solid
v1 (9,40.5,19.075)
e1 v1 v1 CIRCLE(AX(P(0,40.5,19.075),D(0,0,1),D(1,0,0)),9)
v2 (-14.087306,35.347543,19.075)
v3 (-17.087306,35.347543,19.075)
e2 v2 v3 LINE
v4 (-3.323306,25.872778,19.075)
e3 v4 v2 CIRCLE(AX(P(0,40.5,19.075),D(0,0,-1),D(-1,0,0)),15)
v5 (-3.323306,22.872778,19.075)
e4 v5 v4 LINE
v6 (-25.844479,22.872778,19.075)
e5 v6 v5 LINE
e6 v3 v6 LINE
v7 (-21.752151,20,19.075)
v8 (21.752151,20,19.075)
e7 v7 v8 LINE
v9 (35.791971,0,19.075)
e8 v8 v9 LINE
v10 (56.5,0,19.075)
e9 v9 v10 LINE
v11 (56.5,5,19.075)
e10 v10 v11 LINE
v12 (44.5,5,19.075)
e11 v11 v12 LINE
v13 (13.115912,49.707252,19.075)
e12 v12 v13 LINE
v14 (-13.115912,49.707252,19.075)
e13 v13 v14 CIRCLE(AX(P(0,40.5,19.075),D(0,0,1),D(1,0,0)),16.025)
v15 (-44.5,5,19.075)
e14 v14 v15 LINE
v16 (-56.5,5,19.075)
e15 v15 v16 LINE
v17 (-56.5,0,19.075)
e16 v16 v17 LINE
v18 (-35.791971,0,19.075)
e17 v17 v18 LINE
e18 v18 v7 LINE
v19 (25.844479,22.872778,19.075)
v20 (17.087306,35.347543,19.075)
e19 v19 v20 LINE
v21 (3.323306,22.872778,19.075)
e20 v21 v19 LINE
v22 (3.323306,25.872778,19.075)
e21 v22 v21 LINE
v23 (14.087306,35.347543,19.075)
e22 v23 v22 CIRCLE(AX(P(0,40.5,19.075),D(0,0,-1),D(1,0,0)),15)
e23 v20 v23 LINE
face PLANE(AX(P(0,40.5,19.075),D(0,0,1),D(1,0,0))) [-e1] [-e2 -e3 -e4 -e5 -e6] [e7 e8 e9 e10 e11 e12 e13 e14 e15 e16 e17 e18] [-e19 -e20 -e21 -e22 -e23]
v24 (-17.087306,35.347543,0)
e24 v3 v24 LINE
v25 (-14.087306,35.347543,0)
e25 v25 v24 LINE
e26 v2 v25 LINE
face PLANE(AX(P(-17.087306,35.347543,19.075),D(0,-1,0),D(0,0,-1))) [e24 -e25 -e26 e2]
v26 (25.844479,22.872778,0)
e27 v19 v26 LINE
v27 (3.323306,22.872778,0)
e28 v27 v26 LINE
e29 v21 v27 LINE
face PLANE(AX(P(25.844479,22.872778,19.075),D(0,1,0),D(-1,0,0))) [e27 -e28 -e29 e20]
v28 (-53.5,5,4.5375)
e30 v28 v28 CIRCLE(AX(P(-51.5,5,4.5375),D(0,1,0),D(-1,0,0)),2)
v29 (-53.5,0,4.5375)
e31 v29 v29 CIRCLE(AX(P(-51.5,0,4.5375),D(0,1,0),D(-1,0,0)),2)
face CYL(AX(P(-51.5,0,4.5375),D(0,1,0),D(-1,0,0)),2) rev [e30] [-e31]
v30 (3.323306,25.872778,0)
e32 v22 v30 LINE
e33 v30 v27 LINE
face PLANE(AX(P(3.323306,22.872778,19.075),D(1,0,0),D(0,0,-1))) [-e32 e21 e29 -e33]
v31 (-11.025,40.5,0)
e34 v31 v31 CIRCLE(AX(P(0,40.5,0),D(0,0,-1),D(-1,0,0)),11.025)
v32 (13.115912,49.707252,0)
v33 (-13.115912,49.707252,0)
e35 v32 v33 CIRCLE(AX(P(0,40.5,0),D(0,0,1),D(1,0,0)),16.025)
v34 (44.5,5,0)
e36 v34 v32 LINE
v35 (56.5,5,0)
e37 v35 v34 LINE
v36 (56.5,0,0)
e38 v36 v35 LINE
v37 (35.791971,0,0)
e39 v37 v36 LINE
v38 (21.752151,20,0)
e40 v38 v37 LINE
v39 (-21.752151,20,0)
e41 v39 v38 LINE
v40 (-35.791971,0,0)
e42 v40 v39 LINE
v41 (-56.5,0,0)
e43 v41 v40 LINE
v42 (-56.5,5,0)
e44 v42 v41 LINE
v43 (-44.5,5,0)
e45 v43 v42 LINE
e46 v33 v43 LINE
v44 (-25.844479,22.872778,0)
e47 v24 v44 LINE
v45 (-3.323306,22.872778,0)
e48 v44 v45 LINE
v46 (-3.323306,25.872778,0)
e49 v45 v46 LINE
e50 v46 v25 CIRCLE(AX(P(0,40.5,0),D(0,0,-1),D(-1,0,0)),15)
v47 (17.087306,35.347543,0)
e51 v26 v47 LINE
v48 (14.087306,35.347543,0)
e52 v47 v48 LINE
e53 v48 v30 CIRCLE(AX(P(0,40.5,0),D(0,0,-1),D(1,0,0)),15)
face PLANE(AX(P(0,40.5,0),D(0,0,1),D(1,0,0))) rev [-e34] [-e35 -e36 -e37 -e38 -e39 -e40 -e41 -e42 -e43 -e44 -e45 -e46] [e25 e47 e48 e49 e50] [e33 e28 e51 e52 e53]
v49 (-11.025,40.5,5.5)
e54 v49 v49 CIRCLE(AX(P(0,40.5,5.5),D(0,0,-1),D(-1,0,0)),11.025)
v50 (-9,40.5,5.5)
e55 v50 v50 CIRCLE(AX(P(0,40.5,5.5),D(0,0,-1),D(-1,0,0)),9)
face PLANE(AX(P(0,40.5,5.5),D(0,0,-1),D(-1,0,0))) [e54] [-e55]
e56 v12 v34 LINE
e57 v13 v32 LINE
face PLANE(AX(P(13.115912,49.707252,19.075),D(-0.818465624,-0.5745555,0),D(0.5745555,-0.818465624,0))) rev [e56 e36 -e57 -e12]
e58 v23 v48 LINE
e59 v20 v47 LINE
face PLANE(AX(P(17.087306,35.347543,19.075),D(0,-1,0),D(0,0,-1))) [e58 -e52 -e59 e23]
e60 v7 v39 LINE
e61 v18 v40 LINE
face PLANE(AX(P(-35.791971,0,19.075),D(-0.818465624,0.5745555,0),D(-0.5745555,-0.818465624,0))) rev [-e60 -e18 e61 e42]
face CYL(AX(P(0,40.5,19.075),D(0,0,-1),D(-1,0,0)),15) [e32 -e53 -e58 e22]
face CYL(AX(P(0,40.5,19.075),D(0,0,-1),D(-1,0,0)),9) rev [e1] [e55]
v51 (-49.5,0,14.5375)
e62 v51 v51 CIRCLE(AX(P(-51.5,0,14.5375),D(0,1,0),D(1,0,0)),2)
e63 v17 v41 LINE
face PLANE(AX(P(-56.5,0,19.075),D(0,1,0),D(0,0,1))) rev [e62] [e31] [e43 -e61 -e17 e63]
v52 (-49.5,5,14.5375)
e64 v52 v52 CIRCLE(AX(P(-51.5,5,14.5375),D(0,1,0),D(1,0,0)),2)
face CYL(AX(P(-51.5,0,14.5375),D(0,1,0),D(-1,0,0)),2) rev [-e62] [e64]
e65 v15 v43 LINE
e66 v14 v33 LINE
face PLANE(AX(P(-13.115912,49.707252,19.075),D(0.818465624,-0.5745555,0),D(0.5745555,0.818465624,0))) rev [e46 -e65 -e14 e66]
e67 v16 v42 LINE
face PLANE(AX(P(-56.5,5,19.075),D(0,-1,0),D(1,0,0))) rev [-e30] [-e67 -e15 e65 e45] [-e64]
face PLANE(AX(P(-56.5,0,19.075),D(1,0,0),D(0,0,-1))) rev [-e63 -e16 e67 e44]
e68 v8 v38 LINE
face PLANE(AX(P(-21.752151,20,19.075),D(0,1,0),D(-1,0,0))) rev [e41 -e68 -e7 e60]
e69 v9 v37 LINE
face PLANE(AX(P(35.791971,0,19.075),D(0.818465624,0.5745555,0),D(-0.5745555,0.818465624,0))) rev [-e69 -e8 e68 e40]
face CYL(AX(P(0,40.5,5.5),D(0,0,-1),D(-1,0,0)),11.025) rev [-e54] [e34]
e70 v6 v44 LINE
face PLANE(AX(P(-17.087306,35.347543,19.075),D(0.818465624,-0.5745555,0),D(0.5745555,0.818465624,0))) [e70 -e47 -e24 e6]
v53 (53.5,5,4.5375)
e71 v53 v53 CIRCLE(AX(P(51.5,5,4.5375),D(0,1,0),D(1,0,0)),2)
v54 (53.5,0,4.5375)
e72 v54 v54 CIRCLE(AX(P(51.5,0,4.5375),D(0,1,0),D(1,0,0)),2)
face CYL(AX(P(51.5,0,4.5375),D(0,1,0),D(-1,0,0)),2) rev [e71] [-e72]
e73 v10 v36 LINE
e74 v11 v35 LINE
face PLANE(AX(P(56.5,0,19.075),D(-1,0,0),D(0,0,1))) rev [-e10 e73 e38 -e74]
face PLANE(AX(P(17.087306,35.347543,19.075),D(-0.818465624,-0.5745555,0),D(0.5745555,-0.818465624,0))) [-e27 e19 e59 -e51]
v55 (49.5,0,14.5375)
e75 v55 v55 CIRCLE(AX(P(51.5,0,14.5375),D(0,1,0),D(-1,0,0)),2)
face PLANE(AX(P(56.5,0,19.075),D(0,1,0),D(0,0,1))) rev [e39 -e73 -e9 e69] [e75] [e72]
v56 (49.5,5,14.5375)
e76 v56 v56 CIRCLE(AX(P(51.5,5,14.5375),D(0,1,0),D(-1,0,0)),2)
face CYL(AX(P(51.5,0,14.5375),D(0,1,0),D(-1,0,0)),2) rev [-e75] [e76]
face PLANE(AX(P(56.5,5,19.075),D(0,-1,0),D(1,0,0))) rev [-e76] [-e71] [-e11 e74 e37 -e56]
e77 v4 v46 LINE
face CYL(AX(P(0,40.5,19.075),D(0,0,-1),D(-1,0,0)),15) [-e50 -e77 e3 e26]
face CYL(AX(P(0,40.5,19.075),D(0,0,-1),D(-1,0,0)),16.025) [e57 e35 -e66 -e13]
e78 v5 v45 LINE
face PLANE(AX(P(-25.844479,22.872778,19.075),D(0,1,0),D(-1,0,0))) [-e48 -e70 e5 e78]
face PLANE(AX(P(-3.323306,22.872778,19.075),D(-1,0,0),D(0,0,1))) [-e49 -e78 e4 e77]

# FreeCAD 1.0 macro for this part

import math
import FreeCAD as App
import Part
import Sketcher
from FreeCAD import Vector

doc = App.newDocument("Part")
params = doc.addObject("Spreadsheet::Sheet", "Params")
for row, (alias, value) in enumerate([
    ("sketch1_diameter", "18 mm"),
    ("sketch1_radius", "15 mm"),
    ("sketch1_width", "12 mm"),
    ("sketch1_width2", "3 mm"),
    ("sketch1_height", "5 mm"),
    ("pad1_length", "19.075 mm"),
    ("sketch2_diameter", "22.05 mm"),
    ("pocket1_length", "5.5 mm"),
    ("sketch3_diameter", "4 mm"),
], start=1):
    params.set(f"A{row}", alias)
    params.set(f"B{row}", "=" + value)
    params.setAlias(f"B{row}", alias)

body = doc.addObject("PartDesign::Body", "Body")

sketch1 = body.newObject("Sketcher::SketchObject", "Sketch")
sketch1.AttachmentSupport = (doc.getObject("XY_Plane"), [""])
sketch1.MapMode = "FlatFace"
sketch1.addGeometry([
    Part.LineSegment(Vector(-56.5, 5, 0), Vector(-56.5, 0, 0)),
    Part.LineSegment(Vector(-56.5, 0, 0), Vector(-35.8, 0, 0)),
    Part.LineSegment(Vector(-35.8, 0, 0), Vector(-21.8, 20, 0)),
    Part.LineSegment(Vector(-21.8, 20, 0), Vector(21.8, 20, 0)),
    Part.LineSegment(Vector(21.8, 20, 0), Vector(35.8, 0, 0)),
    Part.LineSegment(Vector(35.8, 0, 0), Vector(56.5, 0, 0)),
    Part.LineSegment(Vector(56.5, 0, 0), Vector(56.5, 5, 0)),
    Part.LineSegment(Vector(56.5, 5, 0), Vector(44.5, 5, 0)),
    Part.LineSegment(Vector(44.5, 5, 0), Vector(13.1, 49.7, 0)),
    Part.ArcOfCircle(Part.Circle(Vector(0, 40.5, 0), Vector(0, 0, 1), 16), math.radians(35), math.radians(145)),
    Part.LineSegment(Vector(-13.1, 49.7, 0), Vector(-44.5, 5, 0)),
    Part.LineSegment(Vector(-44.5, 5, 0), Vector(-56.5, 5, 0)),
    Part.LineSegment(Vector(17.1, 35.3, 0), Vector(25.8, 22.9, 0)),
    Part.LineSegment(Vector(25.8, 22.9, 0), Vector(3.3, 22.9, 0)),
    Part.LineSegment(Vector(3.3, 22.9, 0), Vector(3.3, 25.9, 0)),
    Part.ArcOfCircle(Part.Circle(Vector(0, 40.5, 0), Vector(0, 0, 1), 15), math.radians(-77), math.radians(-20)),
    Part.LineSegment(Vector(14.1, 35.3, 0), Vector(17.1, 35.3, 0)),
    Part.LineSegment(Vector(-17.1, 35.3, 0), Vector(-14.1, 35.3, 0)),
    Part.ArcOfCircle(Part.Circle(Vector(0, 40.5, 0), Vector(0, 0, 1), 15), math.radians(-160), math.radians(-103)),
    Part.LineSegment(Vector(-3.3, 25.9, 0), Vector(-3.3, 22.9, 0)),
    Part.LineSegment(Vector(-3.3, 22.9, 0), Vector(-25.8, 22.9, 0)),
    Part.LineSegment(Vector(-25.8, 22.9, 0), Vector(-17.1, 35.3, 0)),
    Part.Circle(Vector(0, 40.5, 0), Vector(0, 0, 1), 9),
], False)
sketch1.addConstraint([
    Sketcher.Constraint("Coincident", 0, 2, 1, 1),
    Sketcher.Constraint("Coincident", 1, 2, 2, 1),
    Sketcher.Constraint("Coincident", 2, 2, 3, 1),
    Sketcher.Constraint("Coincident", 3, 2, 4, 1),
    Sketcher.Constraint("Coincident", 4, 2, 5, 1),
    Sketcher.Constraint("Coincident", 5, 2, 6, 1),
    Sketcher.Constraint("Coincident", 6, 2, 7, 1),
    Sketcher.Constraint("Coincident", 7, 2, 8, 1),
    Sketcher.Constraint("Tangent", 8, 2, 9, 1),
    Sketcher.Constraint("Tangent", 9, 2, 10, 1),
    Sketcher.Constraint("Coincident", 10, 2, 11, 1),
    Sketcher.Constraint("Coincident", 11, 2, 0, 1),
    Sketcher.Constraint("Coincident", 12, 2, 13, 1),
    Sketcher.Constraint("Coincident", 13, 2, 14, 1),
    Sketcher.Constraint("Coincident", 14, 2, 15, 1),
    Sketcher.Constraint("Coincident", 15, 2, 16, 1),
    Sketcher.Constraint("Coincident", 16, 2, 12, 1),
    Sketcher.Constraint("Coincident", 17, 2, 18, 1),
    Sketcher.Constraint("Coincident", 18, 2, 19, 1),
    Sketcher.Constraint("Coincident", 19, 2, 20, 1),
    Sketcher.Constraint("Coincident", 20, 2, 21, 1),
    Sketcher.Constraint("Coincident", 21, 2, 17, 1),
    Sketcher.Constraint("Vertical", 0),
    Sketcher.Constraint("Horizontal", 1),
    Sketcher.Constraint("Horizontal", 3),
    Sketcher.Constraint("Horizontal", 5),
    Sketcher.Constraint("Vertical", 6),
    Sketcher.Constraint("Horizontal", 7),
    Sketcher.Constraint("Horizontal", 11),
    Sketcher.Constraint("Horizontal", 13),
    Sketcher.Constraint("Vertical", 14),
    Sketcher.Constraint("Horizontal", 16),
    Sketcher.Constraint("Horizontal", 17),
    Sketcher.Constraint("Vertical", 19),
    Sketcher.Constraint("Horizontal", 20),
    Sketcher.Constraint("Coincident", 15, 3, 9, 3),
    Sketcher.Constraint("Coincident", 18, 3, 9, 3),
    Sketcher.Constraint("Coincident", 22, 3, 9, 3),
    Sketcher.Constraint("Equal", 15, 18),
    Sketcher.Constraint("Symmetric", 1, 2, 4, 2, -1, 1),
    Sketcher.Constraint("Symmetric", 0, 2, 5, 2, -2),
    Sketcher.Constraint("Symmetric", 8, 2, 9, 2, -2),
    Sketcher.Constraint("Symmetric", 13, 2, 19, 2, -2),
    Sketcher.Constraint("Symmetric", 16, 2, 21, 2, -2),
    Sketcher.Constraint("Parallel", 4, 8),
    Sketcher.Constraint("Parallel", 2, 10),
    Sketcher.Constraint("Parallel", 8, 12),
    Sketcher.Constraint("Parallel", 10, 21),
    Sketcher.Constraint("Horizontal", 7, 2, 10, 2),
    Sketcher.Constraint("Equal", 17, 14),
    Sketcher.Constraint("Diameter", 22, 18.0),
    Sketcher.Constraint("Radius", 15, 15.0),
    Sketcher.Constraint("DistanceX", 7, 2, 7, 1, 12.0),
    Sketcher.Constraint("DistanceX", 16, 1, 16, 2, 3.0),
    Sketcher.Constraint("DistanceY", 0, 2, 0, 1, 5.0),
    Sketcher.Constraint("DistanceY", -1, 1, 2, 2, 20.0),
    Sketcher.Constraint("Radius", 9, 16.025),
    Sketcher.Constraint("DistanceY", -1, 1, 9, 3, 40.5),
    Sketcher.Constraint("DistanceX", 0, 2, -1, 1, 56.5),
    Sketcher.Constraint("DistanceX", 3, 1, 3, 2, 43.504302),
    Sketcher.Constraint("DistanceX", 14, 2, 15, 2, 10.764),
    Sketcher.Constraint("Distance", 12, 15.241649),
])
sketch1.setExpression("Constraints[50]", "Params.sketch1_diameter")
sketch1.setExpression("Constraints[51]", "Params.sketch1_radius")
sketch1.setExpression("Constraints[52]", "Params.sketch1_width")
sketch1.setExpression("Constraints[53]", "Params.sketch1_width2")
sketch1.setExpression("Constraints[54]", "Params.sketch1_height")
pad1 = body.newObject("PartDesign::Pad", "Pad")
pad1.Profile = sketch1
pad1.setExpression("Length", "Params.pad1_length")

sketch2 = body.newObject("Sketcher::SketchObject", "Sketch001")
sketch2.AttachmentSupport = (doc.getObject("XY_Plane"), [""])
sketch2.MapMode = "FlatFace"
sketch2.addGeometry(Part.Circle(Vector(0, 40, 0), Vector(0, 0, 1), 11), False)
sketch2.addConstraint([
    Sketcher.Constraint("PointOnObject", 0, 3, -2),
    Sketcher.Constraint("Diameter", 0, 22.05),
    Sketcher.Constraint("DistanceY", -1, 1, 0, 3, 40.5),
])
sketch2.setExpression("Constraints[1]", "Params.sketch2_diameter")
pocket1 = body.newObject("PartDesign::Pocket", "Pocket")
pocket1.Profile = sketch2
pocket1.setExpression("Length", "Params.pocket1_length")
pocket1.Reversed = True

sketch3 = body.newObject("Sketcher::SketchObject", "Sketch002")
sketch3.AttachmentSupport = (doc.getObject("XZ_Plane"), [""])
sketch3.MapMode = "FlatFace"
sketch3.AttachmentOffset = App.Placement(Vector(0, 0, -5), App.Rotation())
sketch3.addGeometry([
    Part.Circle(Vector(-51.5, 4.5, 0), Vector(0, 0, 1), 2),
    Part.Circle(Vector(51.5, 4.5, 0), Vector(0, 0, 1), 2),
    Part.Circle(Vector(51.5, 14.5, 0), Vector(0, 0, 1), 2),
    Part.Circle(Vector(-51.5, 14.5, 0), Vector(0, 0, 1), 2),
], False)
sketch3.addConstraint([
    Sketcher.Constraint("Equal", 0, 1),
    Sketcher.Constraint("Equal", 1, 2),
    Sketcher.Constraint("Equal", 2, 3),
    Sketcher.Constraint("Symmetric", 0, 3, 1, 3, -2),
    Sketcher.Constraint("Symmetric", 2, 3, 3, 3, -2),
    Sketcher.Constraint("Vertical", 1, 3, 2, 3),
    Sketcher.Constraint("Diameter", 0, 4.0),
    Sketcher.Constraint("DistanceX", 0, 3, 1, 3, 103.0),
    Sketcher.Constraint("DistanceY", 1, 3, 2, 3, 10.0),
    Sketcher.Constraint("DistanceY", -1, 1, 0, 3, 4.5375),
])
sketch3.setExpression("Constraints[6]", "Params.sketch3_diameter")
pocket2 = body.newObject("PartDesign::Pocket", "Pocket001")
pocket2.Profile = sketch3
pocket2.Type = "ThroughAll"
pocket2.Reversed = True

doc.recompute()
